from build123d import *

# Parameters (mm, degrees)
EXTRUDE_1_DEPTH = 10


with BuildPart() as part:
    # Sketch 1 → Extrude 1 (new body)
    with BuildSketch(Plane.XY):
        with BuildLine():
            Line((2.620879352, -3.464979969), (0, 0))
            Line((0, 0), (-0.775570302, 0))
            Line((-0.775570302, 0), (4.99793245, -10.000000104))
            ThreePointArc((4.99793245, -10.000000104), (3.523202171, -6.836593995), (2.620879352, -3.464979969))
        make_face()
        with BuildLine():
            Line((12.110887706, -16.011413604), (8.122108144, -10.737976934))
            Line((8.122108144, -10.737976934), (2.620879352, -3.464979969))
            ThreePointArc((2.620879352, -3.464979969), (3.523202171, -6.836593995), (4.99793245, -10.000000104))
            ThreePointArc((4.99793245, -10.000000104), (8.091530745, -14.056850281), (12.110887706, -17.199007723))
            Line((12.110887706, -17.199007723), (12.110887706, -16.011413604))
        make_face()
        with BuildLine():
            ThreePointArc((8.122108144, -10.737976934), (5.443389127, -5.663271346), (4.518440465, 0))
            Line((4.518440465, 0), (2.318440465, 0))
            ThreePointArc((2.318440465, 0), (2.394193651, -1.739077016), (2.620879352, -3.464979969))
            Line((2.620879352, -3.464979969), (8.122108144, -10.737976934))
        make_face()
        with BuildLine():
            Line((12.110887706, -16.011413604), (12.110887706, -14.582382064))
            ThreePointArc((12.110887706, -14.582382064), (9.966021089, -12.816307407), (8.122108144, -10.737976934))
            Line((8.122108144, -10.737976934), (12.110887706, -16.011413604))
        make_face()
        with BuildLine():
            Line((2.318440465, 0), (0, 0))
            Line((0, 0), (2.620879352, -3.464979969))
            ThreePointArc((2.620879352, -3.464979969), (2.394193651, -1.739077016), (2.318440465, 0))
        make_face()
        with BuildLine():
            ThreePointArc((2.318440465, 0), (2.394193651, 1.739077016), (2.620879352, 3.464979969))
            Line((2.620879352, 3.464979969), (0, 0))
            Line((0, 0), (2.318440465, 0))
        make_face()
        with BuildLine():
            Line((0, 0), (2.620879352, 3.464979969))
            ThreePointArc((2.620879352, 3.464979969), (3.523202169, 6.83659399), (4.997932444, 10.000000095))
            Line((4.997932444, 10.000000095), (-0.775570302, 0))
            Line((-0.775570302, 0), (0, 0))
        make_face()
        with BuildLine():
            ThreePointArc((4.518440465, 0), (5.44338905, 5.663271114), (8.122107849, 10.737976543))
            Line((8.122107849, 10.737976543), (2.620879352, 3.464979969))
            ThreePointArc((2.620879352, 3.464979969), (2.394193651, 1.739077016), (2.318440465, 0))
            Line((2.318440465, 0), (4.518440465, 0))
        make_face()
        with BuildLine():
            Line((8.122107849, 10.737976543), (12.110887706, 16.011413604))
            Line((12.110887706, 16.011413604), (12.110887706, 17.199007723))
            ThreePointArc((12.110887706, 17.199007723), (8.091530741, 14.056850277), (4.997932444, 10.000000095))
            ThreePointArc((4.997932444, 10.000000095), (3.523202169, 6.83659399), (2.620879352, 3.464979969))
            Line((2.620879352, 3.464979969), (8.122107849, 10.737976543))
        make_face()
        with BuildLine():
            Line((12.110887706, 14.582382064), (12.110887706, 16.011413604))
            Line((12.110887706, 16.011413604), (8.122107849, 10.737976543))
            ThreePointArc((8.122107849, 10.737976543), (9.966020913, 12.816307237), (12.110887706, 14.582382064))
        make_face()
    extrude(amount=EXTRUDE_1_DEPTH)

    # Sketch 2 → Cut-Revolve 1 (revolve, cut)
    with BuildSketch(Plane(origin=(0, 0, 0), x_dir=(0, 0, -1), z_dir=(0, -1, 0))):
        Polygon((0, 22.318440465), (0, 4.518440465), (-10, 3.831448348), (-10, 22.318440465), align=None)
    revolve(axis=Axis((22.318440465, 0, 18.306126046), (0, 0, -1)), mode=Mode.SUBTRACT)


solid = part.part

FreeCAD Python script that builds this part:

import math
import FreeCAD as App
import Part
import Sketcher

V = App.Vector
Q = App.Units.Quantity


def add_polygon(sketch, points):
    """Adds a closed chain of lines whose ends are joined by coincident constraints."""
    first, n = sketch.GeometryCount, len(points)
    for a, b in zip(points, points[1:] + points[:1]):
        sketch.addGeometry(Part.LineSegment(App.Vector(*a, 0), App.Vector(*b, 0)), False)
    for i in range(n):
        sketch.addConstraint(Sketcher.Constraint("Coincident", first + i, 2, first + (i + 1) % n, 1))

doc = App.newDocument("Part")
params = doc.addObject("Spreadsheet::Sheet", "Params")
for row, (alias, value) in enumerate([
    ("sketch1_radius", "20 mm"),
    ("sketch1_radius2", "17.8 mm"),
    ("pad1_length", "10 mm"),
    ("sketch2_height", "10 mm"),
    ("sketch2_width", "17.8 mm"),
    ("groove_angle", "360 deg"),
], start=1):
    params.set(f"A{row}", alias)
    params.set(f"B{row}", "=" + value)
    params.setAlias(f"B{row}", alias)

body = doc.addObject("PartDesign::Body", "Body")

# Sketch on XY plane
sketch1 = body.newObject("Sketcher::SketchObject", "Sketch")
sketch1.AttachmentSupport = (doc.getObject("XY_Plane"), [""])
sketch1.MapMode = "FlatFace"
sketch1.addGeometry([
    Part.LineSegment(V(-0.8, 0, 0), V(5, -10, 0)),  # 0
    Part.ArcOfCircle(Part.Circle(V(22.3, 0, 0), V(0, 0, 1), 20), math.radians(-150), math.radians(-121)),  # 1
    Part.LineSegment(V(12.1, -17.2, 0), V(12.1, -14.6, 0)),  # 2
    Part.ArcOfCircle(Part.Circle(V(22.3, 0, 0), V(0, 0, 1), 17.8), math.radians(-142.9), math.radians(-124.99)),  # 3
    Part.ArcOfCircle(Part.Circle(V(22.3, 0, 0), V(0, 0, 1), 17.8), math.radians(180), math.radians(217)),  # 4
    Part.ArcOfCircle(Part.Circle(V(22.3, 0, 0), V(0, 0, 1), 17.8), math.radians(143), math.radians(180)),  # 5
    Part.ArcOfCircle(Part.Circle(V(22.3, 0, 0), V(0, 0, 1), 17.8), math.radians(124.99), math.radians(142.9)),  # 6
    Part.LineSegment(V(12.1, 14.6, 0), V(12.1, 17.2, 0)),  # 7
    Part.ArcOfCircle(Part.Circle(V(22.3, 0, 0), V(0, 0, 1), 20), math.radians(121), math.radians(150)),  # 8
    Part.LineSegment(V(5, 10, 0), V(-0.8, 0, 0)),  # 9
], False)
sketch1.addConstraint([
    Sketcher.Constraint("Tangent", 0, 2, 1, 1),
    Sketcher.Constraint("Coincident", 1, 2, 2, 1),
    Sketcher.Constraint("Coincident", 2, 2, 3, 2),
    Sketcher.Constraint("Tangent", 3, 1, 4, 2),
    Sketcher.Constraint("Tangent", 4, 1, 5, 2),
    Sketcher.Constraint("Tangent", 5, 1, 6, 2),
    Sketcher.Constraint("Coincident", 6, 1, 7, 1),
    Sketcher.Constraint("Coincident", 7, 2, 8, 1),
    Sketcher.Constraint("Tangent", 8, 2, 9, 1),
    Sketcher.Constraint("Coincident", 9, 2, 0, 1),
    Sketcher.Constraint("Vertical", 2),
    Sketcher.Constraint("Vertical", 7),
    Sketcher.Constraint("Coincident", 3, 3, 1, 3),
    Sketcher.Constraint("Coincident", 5, 3, 1, 3),
    Sketcher.Constraint("Coincident", 8, 3, 1, 3),
    Sketcher.Constraint("Equal", 5, 6),
    Sketcher.Constraint("Equal", 1, 8),
    Sketcher.Constraint("Symmetric", 3, 1, 5, 1, -1),
    Sketcher.Constraint("PointOnObject", 4, 1, -1),
    Sketcher.Constraint("PointOnObject", 9, 2, -1),
    Sketcher.Constraint("Vertical", 2, 2, 6, 1),
    Sketcher.Constraint("Radius", 1, 20.0),
    Sketcher.Constraint("Radius", 3, 17.8),
    Sketcher.Constraint("Angle", 0, Q("-60 deg")),
    Sketcher.Constraint("DistanceY", 2, 1, 2, 2, 2.616626),
    Sketcher.Constraint("DistanceX", -1, 1, 1, 3, 22.31844),
    Sketcher.Constraint("DistanceX", -1, 1, 3, 1, 8.122108),
])
sketch1.setExpression("Constraints[21]", "Params.sketch1_radius")
sketch1.setExpression("Constraints[22]", "Params.sketch1_radius2")
pad1 = body.newObject("PartDesign::Pad", "Pad")
pad1.Profile = sketch1
pad1.setExpression("Length", "Params.pad1_length")

# Sketch on XZ plane
sketch2 = body.newObject("Sketcher::SketchObject", "Sketch001")
sketch2.AttachmentSupport = (doc.getObject("XZ_Plane"), [""])
sketch2.MapMode = "FlatFace"
add_polygon(sketch2, [(5, 0), (22, 0), (22, 10), (4, 10)])  # lines 0-3
sketch2.addGeometry(Part.LineSegment(V(22, 10, 0), V(22, 0, 0)), True)  # axis
sketch2.addConstraint([
    Sketcher.Constraint("Horizontal", 0),
    Sketcher.Constraint("Vertical", 1),
    Sketcher.Constraint("Horizontal", 2),
    Sketcher.Constraint("Vertical", 4),
    Sketcher.Constraint("Coincident", 4, 1, 1, 2),
    Sketcher.Constraint("PointOnObject", 0, 2, -1),
    Sketcher.Constraint("PointOnObject", 4, 2, -1),
    Sketcher.Constraint("DistanceY", 1, 1, 1, 2, 10.0),
    Sketcher.Constraint("DistanceX", 0, 1, 0, 2, 17.8),
    Sketcher.Constraint("Angle", 3, Q("-86.07 deg")),
    Sketcher.Constraint("DistanceX", -1, 1, 0, 2, 22.31844),
])
sketch2.setExpression("Constraints[11]", "Params.sketch2_height")
sketch2.setExpression("Constraints[12]", "Params.sketch2_width")
groove = body.newObject("PartDesign::Groove", "Groove")
groove.Profile = sketch2
groove.ReferenceAxis = (sketch2, ["Axis0"])
groove.setExpression("Angle", "Params.groove_angle")

doc.recompute()
